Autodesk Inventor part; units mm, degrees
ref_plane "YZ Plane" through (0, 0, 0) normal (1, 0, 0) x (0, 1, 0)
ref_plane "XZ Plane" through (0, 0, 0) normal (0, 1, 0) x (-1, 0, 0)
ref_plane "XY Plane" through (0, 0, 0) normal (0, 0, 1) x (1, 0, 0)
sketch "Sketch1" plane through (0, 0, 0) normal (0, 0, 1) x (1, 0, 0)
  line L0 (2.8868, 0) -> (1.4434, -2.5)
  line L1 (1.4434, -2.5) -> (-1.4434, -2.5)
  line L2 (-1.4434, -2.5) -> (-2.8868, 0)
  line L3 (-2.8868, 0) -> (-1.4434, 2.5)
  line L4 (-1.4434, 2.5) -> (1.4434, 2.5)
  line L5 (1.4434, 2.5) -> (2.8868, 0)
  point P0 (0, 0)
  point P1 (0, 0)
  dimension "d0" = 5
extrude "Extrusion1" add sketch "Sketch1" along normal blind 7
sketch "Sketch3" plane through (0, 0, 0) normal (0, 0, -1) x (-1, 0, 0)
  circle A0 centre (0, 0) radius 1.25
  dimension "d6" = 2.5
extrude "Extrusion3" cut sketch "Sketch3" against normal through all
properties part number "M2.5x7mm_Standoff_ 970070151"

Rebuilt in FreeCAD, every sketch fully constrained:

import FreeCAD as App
import Part
import Sketcher
from FreeCAD import Vector
Q = App.Units.Quantity


def add_polygon(sketch, points):
    """Adds a closed chain of lines whose ends are joined by coincident constraints."""
    first, n = sketch.GeometryCount, len(points)
    for a, b in zip(points, points[1:] + points[:1]):
        sketch.addGeometry(Part.LineSegment(App.Vector(*a, 0), App.Vector(*b, 0)), False)
    for i in range(n):
        sketch.addConstraint(Sketcher.Constraint("Coincident", first + i, 2, first + (i + 1) % n, 1))

doc = App.newDocument("Part")
params = doc.addObject("Spreadsheet::Sheet", "Params")
for row, (alias, value) in enumerate([
    ("pad1_length", "7 mm"),
    ("sketch2_diameter", "2.5 mm"),
], start=1):
    params.set(f"A{row}", alias)
    params.set(f"B{row}", "=" + value)
    params.setAlias(f"B{row}", alias)

body = doc.addObject("PartDesign::Body", "Body")

sketch1 = body.newObject("Sketcher::SketchObject", "Sketch")
sketch1.AttachmentSupport = (doc.getObject("XY_Plane"), [""])
sketch1.MapMode = "FlatFace"
add_polygon(sketch1, [(1.4, -2.5), (2.9, 0), (1.4, 2.5), (-1.4, 2.5), (-2.9, 0), (-1.4, -2.5)])
sketch1.addConstraint([
    Sketcher.Constraint("Horizontal", 2),
    Sketcher.Constraint("Horizontal", 5),
    Sketcher.Constraint("Symmetric", 0, 2, 3, 2, -1, 1),
    Sketcher.Constraint("Symmetric", 1, 2, 4, 2, -1, 1),
    Sketcher.Constraint("PointOnObject", 0, 2, -1),
    Sketcher.Constraint("Parallel", 0, 3),
    Sketcher.Constraint("Vertical", 2, 2, 4, 2),
    Sketcher.Constraint("DistanceY", 4, 2, 2, 2, Q("5 mm")),
    Sketcher.Constraint("Angle", 0, Q("59.9996 deg")),
    Sketcher.Constraint("DistanceX", 2, 2, 2, 1, Q("2.8868 mm")),
])
pad1 = body.newObject("PartDesign::Pad", "Pad")
pad1.Profile = sketch1
pad1.setExpression("Length", "Params.pad1_length")

sketch2 = body.newObject("Sketcher::SketchObject", "Sketch001")
sketch2.AttachmentSupport = (doc.getObject("XY_Plane"), [""])
sketch2.MapMode = "FlatFace"
sketch2.addGeometry(Part.Circle(Vector(0, 0, 0), Vector(0, 0, 1), 1.2), False)
sketch2.addConstraint([
    Sketcher.Constraint("Coincident", 0, 3, -1, 1),
    Sketcher.Constraint("Diameter", 0, Q("2.5 mm")),
])
sketch2.setExpression("Constraints[1]", "Params.sketch2_diameter")
pocket1 = body.newObject("PartDesign::Pocket", "Pocket")
pocket1.Profile = sketch2
pocket1.Type = "ThroughAll"
pocket1.Reversed = True

doc.recompute()
